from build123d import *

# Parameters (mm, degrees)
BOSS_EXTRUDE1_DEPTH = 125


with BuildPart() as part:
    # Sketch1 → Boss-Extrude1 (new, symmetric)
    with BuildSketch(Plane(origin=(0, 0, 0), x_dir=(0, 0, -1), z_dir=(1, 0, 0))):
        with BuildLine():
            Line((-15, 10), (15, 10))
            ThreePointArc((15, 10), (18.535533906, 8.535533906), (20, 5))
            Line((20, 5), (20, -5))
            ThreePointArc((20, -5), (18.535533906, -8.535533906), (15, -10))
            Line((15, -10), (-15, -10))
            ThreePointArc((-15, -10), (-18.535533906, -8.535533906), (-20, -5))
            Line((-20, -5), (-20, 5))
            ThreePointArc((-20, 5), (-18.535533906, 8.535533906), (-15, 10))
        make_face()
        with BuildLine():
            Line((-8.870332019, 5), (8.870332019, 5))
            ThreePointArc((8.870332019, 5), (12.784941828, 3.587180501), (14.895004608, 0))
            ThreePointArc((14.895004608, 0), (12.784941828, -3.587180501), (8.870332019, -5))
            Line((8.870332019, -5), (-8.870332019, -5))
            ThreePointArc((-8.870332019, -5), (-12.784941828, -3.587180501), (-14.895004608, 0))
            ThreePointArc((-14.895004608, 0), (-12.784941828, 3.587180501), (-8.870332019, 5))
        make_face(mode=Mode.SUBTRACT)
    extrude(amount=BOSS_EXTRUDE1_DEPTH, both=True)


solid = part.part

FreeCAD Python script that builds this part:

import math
import FreeCAD as App
import Part
import Sketcher

doc = App.newDocument("Part")
body = doc.addObject("PartDesign::Body", "Body")

sketch1 = body.newObject("Sketcher::SketchObject", "Sketch")
sketch1.AttachmentSupport = (doc.getObject("YZ_Plane"), [""])
sketch1.MapMode = "FlatFace"
sketch1.addGeometry([
    Part.LineSegment(App.Vector(10, -15, 0), App.Vector(10, 15, 0)),
    Part.ArcOfCircle(Part.Circle(App.Vector(5, 15, 0), App.Vector(0, 0, 1), 5), math.radians(0), math.radians(90)),
    Part.LineSegment(App.Vector(5, 20, 0), App.Vector(-5, 20, 0)),
    Part.ArcOfCircle(Part.Circle(App.Vector(-5, 15, 0), App.Vector(0, 0, 1), 5), math.radians(90), math.radians(180)),
    Part.LineSegment(App.Vector(-10, 15, 0), App.Vector(-10, -15, 0)),
    Part.ArcOfCircle(Part.Circle(App.Vector(-5, -15, 0), App.Vector(0, 0, 1), 5), math.radians(180), math.radians(270)),
    Part.LineSegment(App.Vector(-5, -20, 0), App.Vector(5, -20, 0)),
    Part.ArcOfCircle(Part.Circle(App.Vector(5, -15, 0), App.Vector(0, 0, 1), 5), math.radians(-90), math.radians(0)),
    Part.LineSegment(App.Vector(5, 9, 0), App.Vector(5, -9, 0)),
    Part.ArcOfCircle(Part.Circle(App.Vector(-1, -9, 0), App.Vector(0, 0, 1), 6), math.radians(-79), math.radians(0)),
    Part.ArcOfCircle(Part.Circle(App.Vector(1, -9, 0), App.Vector(0, 0, 1), 6), math.radians(180), math.radians(259)),
    Part.LineSegment(App.Vector(-5, -9, 0), App.Vector(-5, 9, 0)),
    Part.ArcOfCircle(Part.Circle(App.Vector(1, 9, 0), App.Vector(0, 0, 1), 6), math.radians(101), math.radians(180)),
    Part.ArcOfCircle(Part.Circle(App.Vector(-1, 9, 0), App.Vector(0, 0, 1), 6), math.radians(0), math.radians(79)),
], False)
sketch1.addConstraint([
    Sketcher.Constraint("Tangent", 0, 2, 1, 1),
    Sketcher.Constraint("Tangent", 1, 2, 2, 1),
    Sketcher.Constraint("Tangent", 2, 2, 3, 1),
    Sketcher.Constraint("Tangent", 3, 2, 4, 1),
    Sketcher.Constraint("Tangent", 4, 2, 5, 1),
    Sketcher.Constraint("Tangent", 5, 2, 6, 1),
    Sketcher.Constraint("Tangent", 6, 2, 7, 1),
    Sketcher.Constraint("Tangent", 7, 2, 0, 1),
    Sketcher.Constraint("Tangent", 8, 2, 9, 2),
    Sketcher.Constraint("Coincident", 9, 1, 10, 2),
    Sketcher.Constraint("Tangent", 10, 1, 11, 1),
    Sketcher.Constraint("Tangent", 11, 2, 12, 2),
    Sketcher.Constraint("Coincident", 12, 1, 13, 2),
    Sketcher.Constraint("Tangent", 13, 1, 8, 1),
    Sketcher.Constraint("Vertical", 0),
    Sketcher.Constraint("Horizontal", 2),
    Sketcher.Constraint("Vertical", 4),
    Sketcher.Constraint("Horizontal", 6),
    Sketcher.Constraint("Vertical", 8),
    Sketcher.Constraint("Vertical", 11),
    Sketcher.Constraint("Equal", 1, 3),
    Sketcher.Constraint("Equal", 3, 5),
    Sketcher.Constraint("Equal", 5, 7),
    Sketcher.Constraint("Equal", 9, 10),
    Sketcher.Constraint("Equal", 10, 12),
    Sketcher.Constraint("Equal", 12, 13),
    Sketcher.Constraint("Symmetric", 1, 3, 5, 3, -1, 1),
    Sketcher.Constraint("Symmetric", 9, 3, 12, 3, -1, 1),
    Sketcher.Constraint("Symmetric", 9, 1, 12, 1, -1),
    Sketcher.Constraint("Vertical", 6, 2, 8, 2),
    Sketcher.Constraint("Radius", 1, 5.0),
    Sketcher.Constraint("DistanceX", 2, 2, 2, 1, 10.0),
    Sketcher.Constraint("DistanceY", 0, 1, 0, 2, 30.0),
    Sketcher.Constraint("Radius", 9, 6.129668),
    Sketcher.Constraint("DistanceY", 8, 2, 8, 1, 17.740664),
])
pad1 = body.newObject("PartDesign::Pad", "Pad")
pad1.Profile = sketch1
pad1.Length = 250
pad1.Midplane = True

doc.recompute()
